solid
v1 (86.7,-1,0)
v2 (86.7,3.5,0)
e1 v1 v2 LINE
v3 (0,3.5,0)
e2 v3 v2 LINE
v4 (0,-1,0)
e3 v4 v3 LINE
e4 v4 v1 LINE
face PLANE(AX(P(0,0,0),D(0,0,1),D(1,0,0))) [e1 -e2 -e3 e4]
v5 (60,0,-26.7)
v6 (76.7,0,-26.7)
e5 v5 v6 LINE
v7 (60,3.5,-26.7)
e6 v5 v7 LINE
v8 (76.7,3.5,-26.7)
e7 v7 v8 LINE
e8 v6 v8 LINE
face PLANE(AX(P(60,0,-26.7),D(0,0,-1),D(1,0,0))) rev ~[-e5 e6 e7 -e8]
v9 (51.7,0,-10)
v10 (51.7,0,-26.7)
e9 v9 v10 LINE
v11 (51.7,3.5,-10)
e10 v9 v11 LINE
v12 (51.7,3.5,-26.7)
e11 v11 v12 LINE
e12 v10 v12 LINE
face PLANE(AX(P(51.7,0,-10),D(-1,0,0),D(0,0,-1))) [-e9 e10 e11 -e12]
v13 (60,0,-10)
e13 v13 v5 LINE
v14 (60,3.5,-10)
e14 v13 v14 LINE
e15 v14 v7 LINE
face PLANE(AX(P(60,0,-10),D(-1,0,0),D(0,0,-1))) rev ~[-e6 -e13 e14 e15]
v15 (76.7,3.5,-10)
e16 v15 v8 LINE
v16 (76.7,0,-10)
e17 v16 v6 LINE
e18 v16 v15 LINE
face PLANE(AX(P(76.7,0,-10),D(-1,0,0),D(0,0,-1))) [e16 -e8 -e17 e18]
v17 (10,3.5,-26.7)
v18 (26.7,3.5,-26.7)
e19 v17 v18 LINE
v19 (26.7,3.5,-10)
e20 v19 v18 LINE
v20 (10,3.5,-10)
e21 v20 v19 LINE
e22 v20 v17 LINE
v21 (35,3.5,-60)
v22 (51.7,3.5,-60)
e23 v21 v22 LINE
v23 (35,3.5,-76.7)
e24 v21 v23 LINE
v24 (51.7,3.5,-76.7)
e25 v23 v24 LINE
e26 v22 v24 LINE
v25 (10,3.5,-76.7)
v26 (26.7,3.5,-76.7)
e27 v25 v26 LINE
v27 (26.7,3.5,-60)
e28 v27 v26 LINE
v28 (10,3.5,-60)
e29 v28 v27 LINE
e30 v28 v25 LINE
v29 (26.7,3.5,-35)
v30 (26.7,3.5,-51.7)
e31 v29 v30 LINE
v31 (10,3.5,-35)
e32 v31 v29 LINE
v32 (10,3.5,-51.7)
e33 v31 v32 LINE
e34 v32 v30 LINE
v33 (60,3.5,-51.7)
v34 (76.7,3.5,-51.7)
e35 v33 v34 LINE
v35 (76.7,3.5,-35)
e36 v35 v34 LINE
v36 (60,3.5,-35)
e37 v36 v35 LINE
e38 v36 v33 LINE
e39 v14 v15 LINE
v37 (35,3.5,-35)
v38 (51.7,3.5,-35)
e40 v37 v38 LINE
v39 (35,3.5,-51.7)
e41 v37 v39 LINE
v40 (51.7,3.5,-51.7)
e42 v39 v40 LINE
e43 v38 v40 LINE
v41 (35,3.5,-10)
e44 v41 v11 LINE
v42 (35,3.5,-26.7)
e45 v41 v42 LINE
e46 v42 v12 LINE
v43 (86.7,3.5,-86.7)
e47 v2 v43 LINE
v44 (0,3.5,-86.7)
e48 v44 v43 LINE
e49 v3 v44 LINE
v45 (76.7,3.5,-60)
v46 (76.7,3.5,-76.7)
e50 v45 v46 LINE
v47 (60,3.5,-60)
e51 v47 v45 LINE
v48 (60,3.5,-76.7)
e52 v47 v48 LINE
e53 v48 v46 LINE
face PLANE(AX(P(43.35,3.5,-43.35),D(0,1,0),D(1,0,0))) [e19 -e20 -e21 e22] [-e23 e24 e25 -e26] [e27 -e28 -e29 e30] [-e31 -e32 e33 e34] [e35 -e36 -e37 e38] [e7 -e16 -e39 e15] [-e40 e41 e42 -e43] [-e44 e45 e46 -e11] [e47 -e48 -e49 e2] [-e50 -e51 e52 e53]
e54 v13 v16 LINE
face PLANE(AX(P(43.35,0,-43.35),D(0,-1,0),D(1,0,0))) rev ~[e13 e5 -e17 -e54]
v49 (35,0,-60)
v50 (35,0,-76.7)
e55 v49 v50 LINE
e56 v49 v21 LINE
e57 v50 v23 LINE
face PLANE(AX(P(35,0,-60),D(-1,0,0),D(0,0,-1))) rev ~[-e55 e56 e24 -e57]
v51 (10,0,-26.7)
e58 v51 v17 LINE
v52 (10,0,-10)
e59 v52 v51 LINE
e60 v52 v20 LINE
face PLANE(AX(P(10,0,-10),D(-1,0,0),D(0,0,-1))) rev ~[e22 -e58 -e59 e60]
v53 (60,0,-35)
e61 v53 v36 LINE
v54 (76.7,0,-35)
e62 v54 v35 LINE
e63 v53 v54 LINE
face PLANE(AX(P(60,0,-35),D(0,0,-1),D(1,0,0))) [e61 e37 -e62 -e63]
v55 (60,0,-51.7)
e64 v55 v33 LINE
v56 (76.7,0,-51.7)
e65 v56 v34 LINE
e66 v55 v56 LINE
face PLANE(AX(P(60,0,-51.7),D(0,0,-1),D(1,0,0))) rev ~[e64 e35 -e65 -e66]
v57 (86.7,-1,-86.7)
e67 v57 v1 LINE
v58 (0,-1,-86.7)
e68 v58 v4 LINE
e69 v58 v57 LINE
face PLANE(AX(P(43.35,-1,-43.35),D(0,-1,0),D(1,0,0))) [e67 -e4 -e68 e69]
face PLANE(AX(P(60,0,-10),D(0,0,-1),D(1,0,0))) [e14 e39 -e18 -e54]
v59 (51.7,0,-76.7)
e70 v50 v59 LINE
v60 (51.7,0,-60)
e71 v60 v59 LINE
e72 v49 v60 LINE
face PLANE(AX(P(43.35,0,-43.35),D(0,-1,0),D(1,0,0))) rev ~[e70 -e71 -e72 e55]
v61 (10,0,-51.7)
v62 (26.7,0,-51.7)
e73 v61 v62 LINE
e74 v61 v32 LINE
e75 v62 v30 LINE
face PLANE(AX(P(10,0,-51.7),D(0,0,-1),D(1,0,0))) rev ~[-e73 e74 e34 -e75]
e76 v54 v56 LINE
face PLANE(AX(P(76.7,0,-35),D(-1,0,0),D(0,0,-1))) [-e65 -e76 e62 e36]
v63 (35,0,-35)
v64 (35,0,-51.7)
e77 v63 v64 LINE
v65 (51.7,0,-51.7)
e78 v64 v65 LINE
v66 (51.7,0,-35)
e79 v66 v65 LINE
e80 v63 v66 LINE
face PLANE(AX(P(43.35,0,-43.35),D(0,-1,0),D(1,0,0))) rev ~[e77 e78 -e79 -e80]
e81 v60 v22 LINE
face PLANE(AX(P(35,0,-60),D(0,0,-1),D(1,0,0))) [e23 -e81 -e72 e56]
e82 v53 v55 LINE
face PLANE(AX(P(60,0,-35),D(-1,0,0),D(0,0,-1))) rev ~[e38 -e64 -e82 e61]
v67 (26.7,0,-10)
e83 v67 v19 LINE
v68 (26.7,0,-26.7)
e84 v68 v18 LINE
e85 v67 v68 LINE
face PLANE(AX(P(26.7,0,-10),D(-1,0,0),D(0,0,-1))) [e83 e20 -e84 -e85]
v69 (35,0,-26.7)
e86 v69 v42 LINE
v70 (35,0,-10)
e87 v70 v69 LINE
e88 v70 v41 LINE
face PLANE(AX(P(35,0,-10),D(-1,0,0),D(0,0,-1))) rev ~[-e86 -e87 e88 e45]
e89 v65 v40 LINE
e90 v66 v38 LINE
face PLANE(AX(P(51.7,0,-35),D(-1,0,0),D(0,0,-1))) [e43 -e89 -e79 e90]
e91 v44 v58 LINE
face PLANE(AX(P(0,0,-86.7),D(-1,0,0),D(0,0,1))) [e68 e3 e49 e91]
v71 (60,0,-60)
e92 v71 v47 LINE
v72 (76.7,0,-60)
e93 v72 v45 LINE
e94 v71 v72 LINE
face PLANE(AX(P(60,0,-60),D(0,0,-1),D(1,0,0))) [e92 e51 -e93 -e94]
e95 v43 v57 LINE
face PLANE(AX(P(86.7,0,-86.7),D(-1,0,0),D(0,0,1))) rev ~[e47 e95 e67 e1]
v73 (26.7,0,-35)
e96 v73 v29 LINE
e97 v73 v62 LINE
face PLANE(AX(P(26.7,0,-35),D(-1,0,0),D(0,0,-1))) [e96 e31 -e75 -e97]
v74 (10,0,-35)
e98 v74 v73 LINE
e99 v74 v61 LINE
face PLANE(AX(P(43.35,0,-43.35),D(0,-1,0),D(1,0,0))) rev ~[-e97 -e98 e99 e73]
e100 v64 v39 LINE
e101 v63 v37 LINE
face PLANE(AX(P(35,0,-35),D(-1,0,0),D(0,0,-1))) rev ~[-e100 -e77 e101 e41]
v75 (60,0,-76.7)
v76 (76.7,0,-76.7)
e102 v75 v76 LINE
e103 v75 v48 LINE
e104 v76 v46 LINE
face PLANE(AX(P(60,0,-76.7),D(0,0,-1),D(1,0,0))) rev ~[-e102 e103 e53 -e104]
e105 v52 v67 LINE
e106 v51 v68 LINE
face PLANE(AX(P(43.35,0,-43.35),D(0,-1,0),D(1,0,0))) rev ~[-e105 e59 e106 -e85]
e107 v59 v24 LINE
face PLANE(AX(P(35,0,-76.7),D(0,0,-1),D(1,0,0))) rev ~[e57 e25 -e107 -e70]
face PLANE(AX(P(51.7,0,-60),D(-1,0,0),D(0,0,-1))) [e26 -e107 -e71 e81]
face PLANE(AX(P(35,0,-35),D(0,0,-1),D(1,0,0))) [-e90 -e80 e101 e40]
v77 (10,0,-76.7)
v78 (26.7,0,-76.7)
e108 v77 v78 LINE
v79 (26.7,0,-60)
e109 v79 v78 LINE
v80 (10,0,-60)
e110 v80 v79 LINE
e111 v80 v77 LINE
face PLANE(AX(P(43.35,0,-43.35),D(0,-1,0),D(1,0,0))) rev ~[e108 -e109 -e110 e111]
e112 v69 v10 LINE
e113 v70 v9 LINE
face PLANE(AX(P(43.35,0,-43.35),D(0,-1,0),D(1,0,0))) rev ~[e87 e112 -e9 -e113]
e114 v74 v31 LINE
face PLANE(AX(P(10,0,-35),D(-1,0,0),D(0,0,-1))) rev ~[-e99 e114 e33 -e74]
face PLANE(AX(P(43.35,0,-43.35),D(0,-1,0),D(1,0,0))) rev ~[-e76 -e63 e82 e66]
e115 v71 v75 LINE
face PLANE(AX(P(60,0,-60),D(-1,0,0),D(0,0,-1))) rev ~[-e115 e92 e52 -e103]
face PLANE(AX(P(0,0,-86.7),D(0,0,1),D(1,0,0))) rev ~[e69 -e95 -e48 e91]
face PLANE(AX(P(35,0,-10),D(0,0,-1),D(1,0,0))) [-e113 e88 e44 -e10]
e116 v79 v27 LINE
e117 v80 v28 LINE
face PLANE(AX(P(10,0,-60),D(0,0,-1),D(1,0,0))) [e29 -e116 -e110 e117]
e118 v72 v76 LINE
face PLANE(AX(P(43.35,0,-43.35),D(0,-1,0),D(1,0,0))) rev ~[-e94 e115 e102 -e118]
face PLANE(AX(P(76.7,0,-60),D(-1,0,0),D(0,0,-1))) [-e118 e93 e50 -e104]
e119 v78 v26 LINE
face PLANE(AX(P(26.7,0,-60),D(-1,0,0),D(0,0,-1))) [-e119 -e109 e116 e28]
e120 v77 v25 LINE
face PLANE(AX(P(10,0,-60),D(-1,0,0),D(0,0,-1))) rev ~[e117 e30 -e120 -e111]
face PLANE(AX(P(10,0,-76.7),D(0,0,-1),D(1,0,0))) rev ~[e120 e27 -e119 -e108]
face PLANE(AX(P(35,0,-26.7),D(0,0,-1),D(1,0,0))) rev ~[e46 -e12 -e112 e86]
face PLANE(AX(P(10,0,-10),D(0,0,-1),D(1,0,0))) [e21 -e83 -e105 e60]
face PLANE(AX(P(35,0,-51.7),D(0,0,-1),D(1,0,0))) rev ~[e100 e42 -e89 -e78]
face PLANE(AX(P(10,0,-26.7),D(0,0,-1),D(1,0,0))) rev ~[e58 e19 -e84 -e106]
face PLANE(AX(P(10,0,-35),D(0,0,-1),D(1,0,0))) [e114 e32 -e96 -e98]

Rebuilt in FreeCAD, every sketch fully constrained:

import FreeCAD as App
import Part
import Sketcher
from FreeCAD import Vector
Q = App.Units.Quantity


def add_polygon(sketch, points):
    """Adds a closed chain of lines whose ends are joined by coincident constraints."""
    first, n = sketch.GeometryCount, len(points)
    for a, b in zip(points, points[1:] + points[:1]):
        sketch.addGeometry(Part.LineSegment(App.Vector(*a, 0), App.Vector(*b, 0)), False)
    for i in range(n):
        sketch.addConstraint(Sketcher.Constraint("Coincident", first + i, 2, first + (i + 1) % n, 1))

doc = App.newDocument("Part")
params = doc.addObject("Spreadsheet::Sheet", "Params")
for row, (alias, value) in enumerate([
    ("sketch1_width", "86.7 mm"),
    ("sketch1_width2", "16.7 mm"),
    ("pad1_length", "3.5 mm"),
    ("sketch2_width", "86.7 mm"),
    ("pad2_length", "1 mm"),
], start=1):
    params.set(f"A{row}", alias)
    params.set(f"B{row}", "=" + value)
    params.setAlias(f"B{row}", alias)

body = doc.addObject("PartDesign::Body", "Body")

sketch1 = body.newObject("Sketcher::SketchObject", "Sketch")
sketch1.AttachmentSupport = (doc.getObject("XZ_Plane"), [""])
sketch1.MapMode = "FlatFace"
add_polygon(sketch1, [(0, -87), (0, 0), (87, 0), (87, -87)])
add_polygon(sketch1, [(27, -10), (10, -10), (10, -27), (27, -27)])
add_polygon(sketch1, [(52, -10), (35, -10), (35, -27), (52, -27)])
add_polygon(sketch1, [(77, -10), (60, -10), (60, -27), (77, -27)])
add_polygon(sketch1, [(27, -35), (10, -35), (10, -52), (27, -52)])
add_polygon(sketch1, [(27, -60), (10, -60), (10, -77), (27, -77)])
add_polygon(sketch1, [(52, -35), (35, -35), (35, -52), (52, -52)])
add_polygon(sketch1, [(77, -35), (60, -35), (60, -52), (77, -52)])
add_polygon(sketch1, [(52, -60), (35, -60), (35, -77), (52, -77)])
add_polygon(sketch1, [(77, -60), (60, -60), (60, -77), (77, -77)])
sketch1.addConstraint([
    Sketcher.Constraint("Vertical", 0),
    Sketcher.Constraint("Horizontal", 1),
    Sketcher.Constraint("Vertical", 2),
    Sketcher.Constraint("Horizontal", 3),
    Sketcher.Constraint("Horizontal", 4),
    Sketcher.Constraint("Vertical", 5),
    Sketcher.Constraint("Horizontal", 6),
    Sketcher.Constraint("Vertical", 7),
    Sketcher.Constraint("Horizontal", 8),
    Sketcher.Constraint("Vertical", 9),
    Sketcher.Constraint("Horizontal", 10),
    Sketcher.Constraint("Vertical", 11),
    Sketcher.Constraint("Horizontal", 12),
    Sketcher.Constraint("Vertical", 13),
    Sketcher.Constraint("Horizontal", 14),
    Sketcher.Constraint("Vertical", 15),
    Sketcher.Constraint("Horizontal", 16),
    Sketcher.Constraint("Vertical", 17),
    Sketcher.Constraint("Horizontal", 18),
    Sketcher.Constraint("Vertical", 19),
    Sketcher.Constraint("Horizontal", 20),
    Sketcher.Constraint("Vertical", 21),
    Sketcher.Constraint("Horizontal", 22),
    Sketcher.Constraint("Vertical", 23),
    Sketcher.Constraint("Horizontal", 24),
    Sketcher.Constraint("Vertical", 25),
    Sketcher.Constraint("Horizontal", 26),
    Sketcher.Constraint("Vertical", 27),
    Sketcher.Constraint("Horizontal", 28),
    Sketcher.Constraint("Vertical", 29),
    Sketcher.Constraint("Horizontal", 30),
    Sketcher.Constraint("Vertical", 31),
    Sketcher.Constraint("Horizontal", 32),
    Sketcher.Constraint("Vertical", 33),
    Sketcher.Constraint("Horizontal", 34),
    Sketcher.Constraint("Vertical", 35),
    Sketcher.Constraint("Horizontal", 36),
    Sketcher.Constraint("Vertical", 37),
    Sketcher.Constraint("Horizontal", 38),
    Sketcher.Constraint("Vertical", 39),
    Sketcher.Constraint("Coincident", 0, 2, -1, 1),
    Sketcher.Constraint("Horizontal", 7, 2, 8, 2),
    Sketcher.Constraint("Horizontal", 6, 2, 9, 2),
    Sketcher.Constraint("Horizontal", 11, 2, 12, 2),
    Sketcher.Constraint("Horizontal", 10, 2, 13, 2),
    Sketcher.Constraint("Horizontal", 19, 2, 24, 2),
    Sketcher.Constraint("Horizontal", 18, 2, 25, 2),
    Sketcher.Constraint("Horizontal", 27, 2, 28, 2),
    Sketcher.Constraint("Horizontal", 26, 2, 29, 2),
    Sketcher.Constraint("Horizontal", 23, 2, 32, 2),
    Sketcher.Constraint("Horizontal", 22, 2, 33, 2),
    Sketcher.Constraint("Horizontal", 35, 2, 36, 2),
    Sketcher.Constraint("Horizontal", 34, 2, 37, 2),
    Sketcher.Constraint("Vertical", 5, 2, 16, 2),
    Sketcher.Constraint("Vertical", 7, 2, 18, 2),
    Sketcher.Constraint("Vertical", 17, 2, 20, 2),
    Sketcher.Constraint("Vertical", 19, 2, 22, 2),
    Sketcher.Constraint("Vertical", 9, 2, 24, 2),
    Sketcher.Constraint("Vertical", 11, 2, 26, 2),
    Sketcher.Constraint("Vertical", 13, 2, 28, 2),
    Sketcher.Constraint("Vertical", 15, 2, 30, 2),
    Sketcher.Constraint("Vertical", 25, 2, 32, 2),
    Sketcher.Constraint("Vertical", 27, 2, 34, 2),
    Sketcher.Constraint("Vertical", 29, 2, 36, 2),
    Sketcher.Constraint("Vertical", 31, 2, 38, 2),
    Sketcher.Constraint("Equal", 6, 8),
    Sketcher.Constraint("Equal", 10, 12),
    Sketcher.Constraint("Equal", 3, 0),
    Sketcher.Constraint("Equal", 38, 5),
    Sketcher.Constraint("Equal", 15, 17),
    Sketcher.Constraint("Equal", 19, 21),
    Sketcher.Constraint("DistanceX", 1, 1, 1, 2, Q("86.7 mm")),
    Sketcher.Constraint("DistanceX", 4, 2, 4, 1, Q("16.7 mm")),
    Sketcher.Constraint("DistanceX", -1, 1, 4, 2, Q("10 mm")),
    Sketcher.Constraint("DistanceY", 4, 2, -1, 1, Q("10 mm")),
    Sketcher.Constraint("DistanceX", -1, 1, 8, 2, Q("35 mm")),
    Sketcher.Constraint("DistanceX", -1, 1, 12, 2, Q("60 mm")),
    Sketcher.Constraint("DistanceY", 16, 2, -1, 1, Q("35 mm")),
    Sketcher.Constraint("DistanceY", 20, 2, -1, 1, Q("60 mm")),
])
sketch1.setExpression("Constraints[111]", "Params.sketch1_width")
sketch1.setExpression("Constraints[112]", "Params.sketch1_width2")
pad1 = body.newObject("PartDesign::Pad", "Pad")
pad1.Profile = sketch1
pad1.setExpression("Length", "Params.pad1_length")
pad1.Reversed = True

sketch2 = body.newObject("Sketcher::SketchObject", "Sketch001")
sketch2.AttachmentSupport = (doc.getObject("XZ_Plane"), [""])
sketch2.MapMode = "FlatFace"
add_polygon(sketch2, [(0, 0), (0, -87), (87, -87), (87, 0)])
sketch2.addConstraint([
    Sketcher.Constraint("Vertical", 0),
    Sketcher.Constraint("Horizontal", 1),
    Sketcher.Constraint("Vertical", 2),
    Sketcher.Constraint("Horizontal", 3),
    Sketcher.Constraint("Coincident", 3, 2, -1, 1),
    Sketcher.Constraint("Equal", 3, 0),
    Sketcher.Constraint("DistanceX", 1, 1, 1, 2, Q("86.7 mm")),
])
sketch2.setExpression("Constraints[10]", "Params.sketch2_width")
pad2 = body.newObject("PartDesign::Pad", "Pad001")
pad2.Profile = sketch2
pad2.setExpression("Length", "Params.pad2_length")

doc.recompute()
